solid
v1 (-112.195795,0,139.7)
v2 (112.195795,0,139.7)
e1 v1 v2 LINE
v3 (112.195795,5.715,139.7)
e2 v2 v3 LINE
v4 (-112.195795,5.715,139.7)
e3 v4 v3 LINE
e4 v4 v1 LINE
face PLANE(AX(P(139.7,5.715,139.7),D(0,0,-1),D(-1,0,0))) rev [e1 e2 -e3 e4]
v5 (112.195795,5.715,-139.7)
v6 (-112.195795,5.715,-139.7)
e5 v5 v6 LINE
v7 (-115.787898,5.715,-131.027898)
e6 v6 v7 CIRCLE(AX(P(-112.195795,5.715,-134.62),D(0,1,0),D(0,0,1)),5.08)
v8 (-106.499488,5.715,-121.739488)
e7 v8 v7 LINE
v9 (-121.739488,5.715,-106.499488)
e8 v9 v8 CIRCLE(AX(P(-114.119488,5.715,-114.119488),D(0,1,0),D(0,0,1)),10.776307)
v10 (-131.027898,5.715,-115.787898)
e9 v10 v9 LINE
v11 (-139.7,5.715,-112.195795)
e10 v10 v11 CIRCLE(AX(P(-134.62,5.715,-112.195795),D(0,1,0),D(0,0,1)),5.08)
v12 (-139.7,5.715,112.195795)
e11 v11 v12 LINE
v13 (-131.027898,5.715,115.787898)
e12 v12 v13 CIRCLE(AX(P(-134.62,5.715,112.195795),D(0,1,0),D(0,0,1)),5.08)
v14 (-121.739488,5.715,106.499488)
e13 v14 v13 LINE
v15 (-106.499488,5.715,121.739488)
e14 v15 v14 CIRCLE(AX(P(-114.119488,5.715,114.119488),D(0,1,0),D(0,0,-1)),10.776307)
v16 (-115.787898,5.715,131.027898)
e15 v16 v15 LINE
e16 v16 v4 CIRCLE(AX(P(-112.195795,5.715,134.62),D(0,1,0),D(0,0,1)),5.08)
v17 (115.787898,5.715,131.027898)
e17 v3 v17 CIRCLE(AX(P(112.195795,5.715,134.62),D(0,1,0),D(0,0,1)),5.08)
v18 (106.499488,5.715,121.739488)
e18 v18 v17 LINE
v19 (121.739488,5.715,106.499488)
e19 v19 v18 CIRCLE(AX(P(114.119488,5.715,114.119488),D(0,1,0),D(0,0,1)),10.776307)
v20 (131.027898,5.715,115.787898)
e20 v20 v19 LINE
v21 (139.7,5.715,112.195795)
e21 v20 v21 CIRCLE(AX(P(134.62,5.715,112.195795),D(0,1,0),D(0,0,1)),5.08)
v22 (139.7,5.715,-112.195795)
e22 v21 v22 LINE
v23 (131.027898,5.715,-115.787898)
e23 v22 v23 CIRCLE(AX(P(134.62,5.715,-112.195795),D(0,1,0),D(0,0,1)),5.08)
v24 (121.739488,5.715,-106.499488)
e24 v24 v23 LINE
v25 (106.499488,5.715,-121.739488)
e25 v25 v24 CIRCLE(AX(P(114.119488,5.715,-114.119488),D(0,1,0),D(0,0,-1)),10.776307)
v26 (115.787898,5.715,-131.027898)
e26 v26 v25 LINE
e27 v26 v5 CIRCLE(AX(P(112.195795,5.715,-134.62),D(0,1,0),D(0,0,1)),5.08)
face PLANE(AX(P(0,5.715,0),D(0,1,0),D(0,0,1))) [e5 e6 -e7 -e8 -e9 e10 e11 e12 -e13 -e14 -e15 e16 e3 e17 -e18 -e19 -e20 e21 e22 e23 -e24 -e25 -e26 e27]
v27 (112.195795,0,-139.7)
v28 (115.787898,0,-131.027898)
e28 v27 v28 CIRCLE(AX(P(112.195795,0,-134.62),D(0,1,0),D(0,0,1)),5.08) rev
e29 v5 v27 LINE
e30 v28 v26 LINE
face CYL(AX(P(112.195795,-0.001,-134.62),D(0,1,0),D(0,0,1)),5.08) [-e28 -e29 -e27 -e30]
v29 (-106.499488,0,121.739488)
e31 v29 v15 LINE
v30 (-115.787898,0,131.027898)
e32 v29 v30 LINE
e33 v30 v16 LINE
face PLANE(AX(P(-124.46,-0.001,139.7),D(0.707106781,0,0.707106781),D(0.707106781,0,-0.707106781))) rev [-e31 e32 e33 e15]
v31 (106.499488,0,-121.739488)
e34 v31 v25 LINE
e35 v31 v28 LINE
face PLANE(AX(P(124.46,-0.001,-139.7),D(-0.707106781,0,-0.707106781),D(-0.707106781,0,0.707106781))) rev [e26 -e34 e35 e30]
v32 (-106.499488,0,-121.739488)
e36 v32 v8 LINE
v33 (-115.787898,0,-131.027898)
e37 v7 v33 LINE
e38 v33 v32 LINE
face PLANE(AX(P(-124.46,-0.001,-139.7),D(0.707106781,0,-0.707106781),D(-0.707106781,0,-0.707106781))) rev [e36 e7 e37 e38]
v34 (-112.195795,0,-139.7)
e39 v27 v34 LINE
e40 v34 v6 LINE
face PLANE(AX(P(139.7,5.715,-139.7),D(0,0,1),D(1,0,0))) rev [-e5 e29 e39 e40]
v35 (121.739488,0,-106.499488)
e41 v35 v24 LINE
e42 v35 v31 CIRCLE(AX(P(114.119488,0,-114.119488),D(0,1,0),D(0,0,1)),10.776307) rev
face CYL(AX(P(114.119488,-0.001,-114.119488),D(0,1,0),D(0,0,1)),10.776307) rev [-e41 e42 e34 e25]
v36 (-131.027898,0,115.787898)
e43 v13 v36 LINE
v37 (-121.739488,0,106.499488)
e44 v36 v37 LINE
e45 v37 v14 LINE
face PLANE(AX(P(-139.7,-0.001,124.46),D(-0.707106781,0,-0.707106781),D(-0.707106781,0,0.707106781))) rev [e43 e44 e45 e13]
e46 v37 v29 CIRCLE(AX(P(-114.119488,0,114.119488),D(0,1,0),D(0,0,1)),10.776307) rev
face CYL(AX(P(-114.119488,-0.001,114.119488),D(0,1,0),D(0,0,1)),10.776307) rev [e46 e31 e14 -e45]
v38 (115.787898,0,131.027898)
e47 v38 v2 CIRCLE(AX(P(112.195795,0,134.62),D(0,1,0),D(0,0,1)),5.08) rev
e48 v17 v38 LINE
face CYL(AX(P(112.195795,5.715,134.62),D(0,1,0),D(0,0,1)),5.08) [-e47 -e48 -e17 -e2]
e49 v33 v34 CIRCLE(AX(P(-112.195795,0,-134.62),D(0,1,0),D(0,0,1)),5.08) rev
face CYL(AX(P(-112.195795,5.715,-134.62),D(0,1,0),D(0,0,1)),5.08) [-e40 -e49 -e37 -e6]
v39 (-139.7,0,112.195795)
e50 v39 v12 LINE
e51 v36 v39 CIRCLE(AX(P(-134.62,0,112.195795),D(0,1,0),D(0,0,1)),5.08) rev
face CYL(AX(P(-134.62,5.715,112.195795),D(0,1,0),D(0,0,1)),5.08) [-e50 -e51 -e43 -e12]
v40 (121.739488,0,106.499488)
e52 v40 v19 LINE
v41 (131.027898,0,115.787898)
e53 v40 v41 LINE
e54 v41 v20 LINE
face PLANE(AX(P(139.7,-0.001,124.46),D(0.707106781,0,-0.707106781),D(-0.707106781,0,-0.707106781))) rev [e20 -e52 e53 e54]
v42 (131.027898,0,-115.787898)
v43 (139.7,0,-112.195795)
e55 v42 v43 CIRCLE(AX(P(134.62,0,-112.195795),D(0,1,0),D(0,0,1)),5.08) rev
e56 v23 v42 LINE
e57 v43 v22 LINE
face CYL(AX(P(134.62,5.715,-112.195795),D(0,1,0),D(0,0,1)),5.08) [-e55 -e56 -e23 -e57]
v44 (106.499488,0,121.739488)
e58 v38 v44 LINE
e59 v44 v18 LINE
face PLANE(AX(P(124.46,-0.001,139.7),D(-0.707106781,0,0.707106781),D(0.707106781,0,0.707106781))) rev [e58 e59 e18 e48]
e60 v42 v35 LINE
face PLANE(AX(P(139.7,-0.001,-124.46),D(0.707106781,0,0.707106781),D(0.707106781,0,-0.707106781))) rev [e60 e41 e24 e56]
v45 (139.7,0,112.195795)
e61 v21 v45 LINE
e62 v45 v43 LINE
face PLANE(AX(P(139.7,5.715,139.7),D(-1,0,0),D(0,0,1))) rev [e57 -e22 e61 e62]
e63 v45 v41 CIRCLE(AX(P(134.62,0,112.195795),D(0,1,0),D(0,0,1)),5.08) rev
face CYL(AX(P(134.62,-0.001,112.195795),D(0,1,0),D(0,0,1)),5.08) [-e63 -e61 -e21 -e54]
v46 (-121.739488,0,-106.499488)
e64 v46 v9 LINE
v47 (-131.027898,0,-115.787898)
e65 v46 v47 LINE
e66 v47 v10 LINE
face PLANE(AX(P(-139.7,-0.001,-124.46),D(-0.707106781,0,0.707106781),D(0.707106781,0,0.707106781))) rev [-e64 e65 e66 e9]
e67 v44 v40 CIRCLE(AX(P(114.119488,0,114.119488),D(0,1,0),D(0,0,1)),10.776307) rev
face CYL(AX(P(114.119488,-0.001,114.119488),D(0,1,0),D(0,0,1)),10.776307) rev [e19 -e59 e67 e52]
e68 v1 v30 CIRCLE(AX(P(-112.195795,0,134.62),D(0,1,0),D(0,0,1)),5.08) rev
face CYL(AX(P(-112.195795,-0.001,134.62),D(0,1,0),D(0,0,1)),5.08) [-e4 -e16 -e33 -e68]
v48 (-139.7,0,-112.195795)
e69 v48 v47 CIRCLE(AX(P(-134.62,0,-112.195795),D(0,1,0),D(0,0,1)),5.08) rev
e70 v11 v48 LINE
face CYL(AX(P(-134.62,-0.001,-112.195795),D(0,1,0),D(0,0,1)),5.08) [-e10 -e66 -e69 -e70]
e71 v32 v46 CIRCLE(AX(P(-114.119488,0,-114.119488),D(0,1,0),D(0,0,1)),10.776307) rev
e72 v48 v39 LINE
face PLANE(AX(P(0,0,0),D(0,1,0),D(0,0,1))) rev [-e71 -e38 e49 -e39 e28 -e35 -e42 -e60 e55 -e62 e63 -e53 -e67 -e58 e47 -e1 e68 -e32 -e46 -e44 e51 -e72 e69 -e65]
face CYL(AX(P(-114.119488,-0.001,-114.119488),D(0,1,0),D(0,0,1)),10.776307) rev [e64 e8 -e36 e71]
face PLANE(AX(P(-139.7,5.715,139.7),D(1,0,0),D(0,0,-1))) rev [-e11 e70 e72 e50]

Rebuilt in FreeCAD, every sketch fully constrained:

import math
import FreeCAD as App
import Part
import Sketcher
Q = App.Units.Quantity


def edges_at(feature, points):
    """Names of the edges that pass closest to the given points."""
    edges = feature.Shape.Edges
    near = lambda p: min(range(len(edges)), key=lambda i: edges[i].distToShape(Part.Vertex(*p))[0])
    return sorted({f"Edge{near(p) + 1}" for p in points})


def add_polygon(sketch, points):
    """Adds a closed chain of lines whose ends are joined by coincident constraints."""
    first, n = sketch.GeometryCount, len(points)
    for a, b in zip(points, points[1:] + points[:1]):
        sketch.addGeometry(Part.LineSegment(App.Vector(*a, 0), App.Vector(*b, 0)), False)
    for i in range(n):
        sketch.addConstraint(Sketcher.Constraint("Coincident", first + i, 2, first + (i + 1) % n, 1))

doc = App.newDocument("Part")
body = doc.addObject("PartDesign::Body", "Body")

sketch1 = doc.addObject("Sketcher::SketchObject", "Sketch")
body.addObject(sketch1)
sketch1.AttachmentSupport = (doc.XZ_Plane, [""])
sketch1.MapMode = "FlatFace"
add_polygon(sketch1, [(-140, -140), (-140, 140), (140, 140), (140, -140)])
sketch1.addConstraint([
    Sketcher.Constraint("Vertical", 0),
    Sketcher.Constraint("Horizontal", 1),
    Sketcher.Constraint("Vertical", 2),
    Sketcher.Constraint("Horizontal", 3),
    Sketcher.Constraint("Symmetric", 0, 2, 2, 2, -1, 1),
    Sketcher.Constraint("Equal", 3, 0),
    Sketcher.Constraint("DistanceX", 1, 1, 1, 2, Q("11 in")),
])
pad1 = doc.addObject("PartDesign::Pad", "Pad")
body.addObject(pad1)
pad1.Profile = sketch1
pad1.Length = Q("0.225 in")
pad1.Reversed = True

sketch2 = doc.addObject("Sketcher::SketchObject", "Sketch001")
body.addObject(sketch2)
sketch2.AttachmentSupport = (doc.XZ_Plane, [""])
sketch2.MapMode = "FlatFace"
sketch2.AttachmentOffset = App.Placement(App.Vector(0, 0, -0.225 * 25.4), App.Rotation())
sketch2.addGeometry(Part.Circle(App.Vector(-114, -114, 0), App.Vector(0, 0, 1), 5), False)
sketch2.addConstraint([
    Sketcher.Constraint("Diameter", 0, Q("0.397 in")),
    Sketcher.Constraint("DistanceX", 0, 3, -1, 1, Q("4.5 in")),
    Sketcher.Constraint("DistanceY", 0, 3, -1, 1, Q("4.5 in")),
])
pocket1 = doc.addObject("PartDesign::Pocket", "Pocket")
body.addObject(pocket1)
pocket1.Profile = sketch2
pocket1.Type = "UpToFirst"
pocket1.Reversed = True

sketch3 = doc.addObject("Sketcher::SketchObject", "Sketch002")
body.addObject(sketch3)
sketch3.AttachmentSupport = (doc.XZ_Plane, [""])
sketch3.MapMode = "FlatFace"
sketch3.AttachmentOffset = App.Placement(App.Vector(0, 0, -0.225 * 25.4), App.Rotation())
sketch3.addGeometry(Part.Circle(App.Vector(114, -114, 0), App.Vector(0, 0, 1), 5), False)
sketch3.addConstraint([
    Sketcher.Constraint("Diameter", 0, Q("0.397 in")),
    Sketcher.Constraint("DistanceX", -1, 1, 0, 3, Q("4.5 in")),
    Sketcher.Constraint("DistanceY", 0, 3, -1, 1, Q("4.5 in")),
])
pocket2 = doc.addObject("PartDesign::Pocket", "Pocket001")
body.addObject(pocket2)
pocket2.Profile = sketch3
pocket2.Type = "UpToFirst"
pocket2.Reversed = True

sketch4 = doc.addObject("Sketcher::SketchObject", "Sketch003")
body.addObject(sketch4)
sketch4.AttachmentSupport = (doc.XZ_Plane, [""])
sketch4.MapMode = "FlatFace"
sketch4.AttachmentOffset = App.Placement(App.Vector(0, 0, -0.225 * 25.4), App.Rotation())
sketch4.addGeometry(Part.Circle(App.Vector(114, 114, 0), App.Vector(0, 0, 1), 5), False)
sketch4.addConstraint([
    Sketcher.Constraint("Diameter", 0, Q("0.397 in")),
    Sketcher.Constraint("DistanceX", -1, 1, 0, 3, Q("4.5 in")),
    Sketcher.Constraint("DistanceY", -1, 1, 0, 3, Q("4.5 in")),
])
pocket3 = doc.addObject("PartDesign::Pocket", "Pocket002")
body.addObject(pocket3)
pocket3.Profile = sketch4
pocket3.Type = "UpToFirst"
pocket3.Reversed = True

sketch5 = doc.addObject("Sketcher::SketchObject", "Sketch004")
body.addObject(sketch5)
sketch5.AttachmentSupport = (doc.XZ_Plane, [""])
sketch5.MapMode = "FlatFace"
sketch5.AttachmentOffset = App.Placement(App.Vector(0, 0, -0.225 * 25.4), App.Rotation())
sketch5.addGeometry(Part.Circle(App.Vector(-114, 114, 0), App.Vector(0, 0, 1), 5), False)
sketch5.addConstraint([
    Sketcher.Constraint("Diameter", 0, Q("0.397 in")),
    Sketcher.Constraint("DistanceX", 0, 3, -1, 1, Q("4.5 in")),
    Sketcher.Constraint("DistanceY", -1, 1, 0, 3, Q("4.5 in")),
])
pocket4 = doc.addObject("PartDesign::Pocket", "Pocket003")
body.addObject(pocket4)
pocket4.Profile = sketch5
pocket4.Type = "UpToFirst"
pocket4.Reversed = True

sketch6 = doc.addObject("Sketcher::SketchObject", "Sketch005")
body.addObject(sketch6)
sketch6.AttachmentSupport = (doc.XZ_Plane, [""])
sketch6.MapMode = "FlatFace"
sketch6.AttachmentOffset = App.Placement(App.Vector(0, 0, -0.225 * 25.4), App.Rotation())
sketch6.addGeometry([
    Part.LineSegment(App.Vector(-140, -140, 0), App.Vector(-140, -124, 0)),
    Part.LineSegment(App.Vector(-140, -124, 0), App.Vector(-122, -106, 0)),
    Part.ArcOfCircle(Part.Circle(App.Vector(-114, -114, 0), App.Vector(0, 0, 1), 11), math.radians(-45), math.radians(135)),
    Part.LineSegment(App.Vector(-106, -122, 0), App.Vector(-124, -140, 0)),
    Part.LineSegment(App.Vector(-124, -140, 0), App.Vector(-140, -140, 0)),
], False)
sketch6.addConstraint([
    Sketcher.Constraint("Coincident", 0, 2, 1, 1),
    Sketcher.Constraint("Tangent", 1, 2, 2, 2),
    Sketcher.Constraint("Tangent", 2, 1, 3, 1),
    Sketcher.Constraint("Coincident", 3, 2, 4, 1),
    Sketcher.Constraint("Coincident", 4, 2, 0, 1),
    Sketcher.Constraint("Vertical", 0),
    Sketcher.Constraint("Horizontal", 4),
    Sketcher.Constraint("Parallel", 1, 3),
    Sketcher.Constraint("Equal", 4, 0),
    Sketcher.Constraint("Equal", 1, 3),
    Sketcher.Constraint("Distance", 1, Q("1 in")),
    Sketcher.Constraint("DistanceX", 4, 2, 4, 1, Q("0.6 in")),
    Sketcher.Constraint("DistanceX", 0, 2, -1, 1, Q("5.5 in")),
    Sketcher.Constraint("DistanceY", 0, 2, -1, 1, Q("4.9 in")),
])
pocket5 = doc.addObject("PartDesign::Pocket", "Pocket004")
body.addObject(pocket5)
pocket5.Profile = sketch6
pocket5.Type = "UpToFirst"
pocket5.Reversed = True

sketch7 = doc.addObject("Sketcher::SketchObject", "Sketch006")
body.addObject(sketch7)
sketch7.AttachmentSupport = (doc.XZ_Plane, [""])
sketch7.MapMode = "FlatFace"
sketch7.AttachmentOffset = App.Placement(App.Vector(0, 0, -0.225 * 25.4), App.Rotation())
sketch7.addGeometry([
    Part.LineSegment(App.Vector(-124, 140, 0), App.Vector(-106, 122, 0)),
    Part.ArcOfCircle(Part.Circle(App.Vector(-114, 114, 0), App.Vector(0, 0, 1), 11), math.radians(-135), math.radians(45)),
    Part.LineSegment(App.Vector(-122, 106, 0), App.Vector(-140, 124, 0)),
    Part.LineSegment(App.Vector(-140, 124, 0), App.Vector(-140, 140, 0)),
    Part.LineSegment(App.Vector(-140, 140, 0), App.Vector(-124, 140, 0)),
], False)
sketch7.addConstraint([
    Sketcher.Constraint("Tangent", 0, 2, 1, 2),
    Sketcher.Constraint("Tangent", 1, 1, 2, 1),
    Sketcher.Constraint("Coincident", 2, 2, 3, 1),
    Sketcher.Constraint("Coincident", 3, 2, 4, 1),
    Sketcher.Constraint("Coincident", 4, 2, 0, 1),
    Sketcher.Constraint("Vertical", 3),
    Sketcher.Constraint("Horizontal", 4),
    Sketcher.Constraint("Parallel", 0, 2),
    Sketcher.Constraint("Equal", 4, 3),
    Sketcher.Constraint("Equal", 0, 2),
    Sketcher.Constraint("Distance", 0, Q("1 in")),
    Sketcher.Constraint("DistanceX", 4, 1, 4, 2, Q("0.6 in")),
    Sketcher.Constraint("DistanceX", 2, 2, -1, 1, Q("5.5 in")),
    Sketcher.Constraint("DistanceY", -1, 1, 2, 2, Q("4.9 in")),
])
pocket6 = doc.addObject("PartDesign::Pocket", "Pocket005")
body.addObject(pocket6)
pocket6.Profile = sketch7
pocket6.Type = "UpToFirst"
pocket6.Reversed = True

sketch8 = doc.addObject("Sketcher::SketchObject", "Sketch007")
body.addObject(sketch8)
sketch8.AttachmentSupport = (doc.XZ_Plane, [""])
sketch8.MapMode = "FlatFace"
sketch8.AttachmentOffset = App.Placement(App.Vector(0, 0, -0.225 * 25.4), App.Rotation())
sketch8.addGeometry([
    Part.LineSegment(App.Vector(140, 140, 0), App.Vector(140, 124, 0)),
    Part.LineSegment(App.Vector(140, 124, 0), App.Vector(122, 106, 0)),
    Part.ArcOfCircle(Part.Circle(App.Vector(114, 114, 0), App.Vector(0, 0, 1), 11), math.radians(135), math.radians(315)),
    Part.LineSegment(App.Vector(106, 122, 0), App.Vector(124, 140, 0)),
    Part.LineSegment(App.Vector(124, 140, 0), App.Vector(140, 140, 0)),
], False)
sketch8.addConstraint([
    Sketcher.Constraint("Coincident", 0, 2, 1, 1),
    Sketcher.Constraint("Tangent", 1, 2, 2, 2),
    Sketcher.Constraint("Tangent", 2, 1, 3, 1),
    Sketcher.Constraint("Coincident", 3, 2, 4, 1),
    Sketcher.Constraint("Coincident", 4, 2, 0, 1),
    Sketcher.Constraint("Vertical", 0),
    Sketcher.Constraint("Horizontal", 4),
    Sketcher.Constraint("Parallel", 1, 3),
    Sketcher.Constraint("Equal", 4, 0),
    Sketcher.Constraint("Equal", 1, 3),
    Sketcher.Constraint("Distance", 1, Q("1 in")),
    Sketcher.Constraint("DistanceX", 4, 1, 4, 2, Q("0.6 in")),
    Sketcher.Constraint("DistanceX", -1, 1, 0, 2, Q("5.5 in")),
    Sketcher.Constraint("DistanceY", -1, 1, 0, 2, Q("4.9 in")),
])
pocket7 = doc.addObject("PartDesign::Pocket", "Pocket006")
body.addObject(pocket7)
pocket7.Profile = sketch8
pocket7.Type = "UpToFirst"
pocket7.Reversed = True

sketch9 = doc.addObject("Sketcher::SketchObject", "Sketch008")
body.addObject(sketch9)
sketch9.AttachmentSupport = (doc.XZ_Plane, [""])
sketch9.MapMode = "FlatFace"
sketch9.AttachmentOffset = App.Placement(App.Vector(0, 0, -0.225 * 25.4), App.Rotation())
sketch9.addGeometry([
    Part.LineSegment(App.Vector(124, -140, 0), App.Vector(106, -122, 0)),
    Part.ArcOfCircle(Part.Circle(App.Vector(114, -114, 0), App.Vector(0, 0, 1), 11), math.radians(45), math.radians(225)),
    Part.LineSegment(App.Vector(122, -106, 0), App.Vector(140, -124, 0)),
    Part.LineSegment(App.Vector(140, -124, 0), App.Vector(140, -140, 0)),
    Part.LineSegment(App.Vector(140, -140, 0), App.Vector(124, -140, 0)),
], False)
sketch9.addConstraint([
    Sketcher.Constraint("Tangent", 0, 2, 1, 2),
    Sketcher.Constraint("Tangent", 1, 1, 2, 1),
    Sketcher.Constraint("Coincident", 2, 2, 3, 1),
    Sketcher.Constraint("Coincident", 3, 2, 4, 1),
    Sketcher.Constraint("Coincident", 4, 2, 0, 1),
    Sketcher.Constraint("Vertical", 3),
    Sketcher.Constraint("Horizontal", 4),
    Sketcher.Constraint("Parallel", 0, 2),
    Sketcher.Constraint("Equal", 4, 3),
    Sketcher.Constraint("Equal", 0, 2),
    Sketcher.Constraint("Distance", 0, Q("1 in")),
    Sketcher.Constraint("DistanceX", 4, 2, 4, 1, Q("0.6 in")),
    Sketcher.Constraint("DistanceX", -1, 1, 2, 2, Q("5.5 in")),
    Sketcher.Constraint("DistanceY", 2, 2, -1, 1, Q("4.9 in")),
])
pocket8 = doc.addObject("PartDesign::Pocket", "Pocket007")
body.addObject(pocket8)
pocket8.Profile = sketch9
pocket8.Type = "UpToFirst"
pocket8.Reversed = True
doc.recompute()

fillet = doc.addObject("PartDesign::Fillet", "Fillet")
body.addObject(fillet)
fillet.Base = (pocket8, edges_at(pocket8, [
    (124.46, 2.857, -139.7),
    (139.7, 2.857, -124.46),
    (139.7, 2.857, 124.46),
    (124.46, 2.857, 139.7),
    (-124.46, 2.857, 139.7),
    (-139.7, 2.857, 124.46),
    (-124.46, 2.857, -139.7),
    (-139.7, 2.857, -124.46),
]))
fillet.Radius = Q("0.2 in")

doc.recompute()
